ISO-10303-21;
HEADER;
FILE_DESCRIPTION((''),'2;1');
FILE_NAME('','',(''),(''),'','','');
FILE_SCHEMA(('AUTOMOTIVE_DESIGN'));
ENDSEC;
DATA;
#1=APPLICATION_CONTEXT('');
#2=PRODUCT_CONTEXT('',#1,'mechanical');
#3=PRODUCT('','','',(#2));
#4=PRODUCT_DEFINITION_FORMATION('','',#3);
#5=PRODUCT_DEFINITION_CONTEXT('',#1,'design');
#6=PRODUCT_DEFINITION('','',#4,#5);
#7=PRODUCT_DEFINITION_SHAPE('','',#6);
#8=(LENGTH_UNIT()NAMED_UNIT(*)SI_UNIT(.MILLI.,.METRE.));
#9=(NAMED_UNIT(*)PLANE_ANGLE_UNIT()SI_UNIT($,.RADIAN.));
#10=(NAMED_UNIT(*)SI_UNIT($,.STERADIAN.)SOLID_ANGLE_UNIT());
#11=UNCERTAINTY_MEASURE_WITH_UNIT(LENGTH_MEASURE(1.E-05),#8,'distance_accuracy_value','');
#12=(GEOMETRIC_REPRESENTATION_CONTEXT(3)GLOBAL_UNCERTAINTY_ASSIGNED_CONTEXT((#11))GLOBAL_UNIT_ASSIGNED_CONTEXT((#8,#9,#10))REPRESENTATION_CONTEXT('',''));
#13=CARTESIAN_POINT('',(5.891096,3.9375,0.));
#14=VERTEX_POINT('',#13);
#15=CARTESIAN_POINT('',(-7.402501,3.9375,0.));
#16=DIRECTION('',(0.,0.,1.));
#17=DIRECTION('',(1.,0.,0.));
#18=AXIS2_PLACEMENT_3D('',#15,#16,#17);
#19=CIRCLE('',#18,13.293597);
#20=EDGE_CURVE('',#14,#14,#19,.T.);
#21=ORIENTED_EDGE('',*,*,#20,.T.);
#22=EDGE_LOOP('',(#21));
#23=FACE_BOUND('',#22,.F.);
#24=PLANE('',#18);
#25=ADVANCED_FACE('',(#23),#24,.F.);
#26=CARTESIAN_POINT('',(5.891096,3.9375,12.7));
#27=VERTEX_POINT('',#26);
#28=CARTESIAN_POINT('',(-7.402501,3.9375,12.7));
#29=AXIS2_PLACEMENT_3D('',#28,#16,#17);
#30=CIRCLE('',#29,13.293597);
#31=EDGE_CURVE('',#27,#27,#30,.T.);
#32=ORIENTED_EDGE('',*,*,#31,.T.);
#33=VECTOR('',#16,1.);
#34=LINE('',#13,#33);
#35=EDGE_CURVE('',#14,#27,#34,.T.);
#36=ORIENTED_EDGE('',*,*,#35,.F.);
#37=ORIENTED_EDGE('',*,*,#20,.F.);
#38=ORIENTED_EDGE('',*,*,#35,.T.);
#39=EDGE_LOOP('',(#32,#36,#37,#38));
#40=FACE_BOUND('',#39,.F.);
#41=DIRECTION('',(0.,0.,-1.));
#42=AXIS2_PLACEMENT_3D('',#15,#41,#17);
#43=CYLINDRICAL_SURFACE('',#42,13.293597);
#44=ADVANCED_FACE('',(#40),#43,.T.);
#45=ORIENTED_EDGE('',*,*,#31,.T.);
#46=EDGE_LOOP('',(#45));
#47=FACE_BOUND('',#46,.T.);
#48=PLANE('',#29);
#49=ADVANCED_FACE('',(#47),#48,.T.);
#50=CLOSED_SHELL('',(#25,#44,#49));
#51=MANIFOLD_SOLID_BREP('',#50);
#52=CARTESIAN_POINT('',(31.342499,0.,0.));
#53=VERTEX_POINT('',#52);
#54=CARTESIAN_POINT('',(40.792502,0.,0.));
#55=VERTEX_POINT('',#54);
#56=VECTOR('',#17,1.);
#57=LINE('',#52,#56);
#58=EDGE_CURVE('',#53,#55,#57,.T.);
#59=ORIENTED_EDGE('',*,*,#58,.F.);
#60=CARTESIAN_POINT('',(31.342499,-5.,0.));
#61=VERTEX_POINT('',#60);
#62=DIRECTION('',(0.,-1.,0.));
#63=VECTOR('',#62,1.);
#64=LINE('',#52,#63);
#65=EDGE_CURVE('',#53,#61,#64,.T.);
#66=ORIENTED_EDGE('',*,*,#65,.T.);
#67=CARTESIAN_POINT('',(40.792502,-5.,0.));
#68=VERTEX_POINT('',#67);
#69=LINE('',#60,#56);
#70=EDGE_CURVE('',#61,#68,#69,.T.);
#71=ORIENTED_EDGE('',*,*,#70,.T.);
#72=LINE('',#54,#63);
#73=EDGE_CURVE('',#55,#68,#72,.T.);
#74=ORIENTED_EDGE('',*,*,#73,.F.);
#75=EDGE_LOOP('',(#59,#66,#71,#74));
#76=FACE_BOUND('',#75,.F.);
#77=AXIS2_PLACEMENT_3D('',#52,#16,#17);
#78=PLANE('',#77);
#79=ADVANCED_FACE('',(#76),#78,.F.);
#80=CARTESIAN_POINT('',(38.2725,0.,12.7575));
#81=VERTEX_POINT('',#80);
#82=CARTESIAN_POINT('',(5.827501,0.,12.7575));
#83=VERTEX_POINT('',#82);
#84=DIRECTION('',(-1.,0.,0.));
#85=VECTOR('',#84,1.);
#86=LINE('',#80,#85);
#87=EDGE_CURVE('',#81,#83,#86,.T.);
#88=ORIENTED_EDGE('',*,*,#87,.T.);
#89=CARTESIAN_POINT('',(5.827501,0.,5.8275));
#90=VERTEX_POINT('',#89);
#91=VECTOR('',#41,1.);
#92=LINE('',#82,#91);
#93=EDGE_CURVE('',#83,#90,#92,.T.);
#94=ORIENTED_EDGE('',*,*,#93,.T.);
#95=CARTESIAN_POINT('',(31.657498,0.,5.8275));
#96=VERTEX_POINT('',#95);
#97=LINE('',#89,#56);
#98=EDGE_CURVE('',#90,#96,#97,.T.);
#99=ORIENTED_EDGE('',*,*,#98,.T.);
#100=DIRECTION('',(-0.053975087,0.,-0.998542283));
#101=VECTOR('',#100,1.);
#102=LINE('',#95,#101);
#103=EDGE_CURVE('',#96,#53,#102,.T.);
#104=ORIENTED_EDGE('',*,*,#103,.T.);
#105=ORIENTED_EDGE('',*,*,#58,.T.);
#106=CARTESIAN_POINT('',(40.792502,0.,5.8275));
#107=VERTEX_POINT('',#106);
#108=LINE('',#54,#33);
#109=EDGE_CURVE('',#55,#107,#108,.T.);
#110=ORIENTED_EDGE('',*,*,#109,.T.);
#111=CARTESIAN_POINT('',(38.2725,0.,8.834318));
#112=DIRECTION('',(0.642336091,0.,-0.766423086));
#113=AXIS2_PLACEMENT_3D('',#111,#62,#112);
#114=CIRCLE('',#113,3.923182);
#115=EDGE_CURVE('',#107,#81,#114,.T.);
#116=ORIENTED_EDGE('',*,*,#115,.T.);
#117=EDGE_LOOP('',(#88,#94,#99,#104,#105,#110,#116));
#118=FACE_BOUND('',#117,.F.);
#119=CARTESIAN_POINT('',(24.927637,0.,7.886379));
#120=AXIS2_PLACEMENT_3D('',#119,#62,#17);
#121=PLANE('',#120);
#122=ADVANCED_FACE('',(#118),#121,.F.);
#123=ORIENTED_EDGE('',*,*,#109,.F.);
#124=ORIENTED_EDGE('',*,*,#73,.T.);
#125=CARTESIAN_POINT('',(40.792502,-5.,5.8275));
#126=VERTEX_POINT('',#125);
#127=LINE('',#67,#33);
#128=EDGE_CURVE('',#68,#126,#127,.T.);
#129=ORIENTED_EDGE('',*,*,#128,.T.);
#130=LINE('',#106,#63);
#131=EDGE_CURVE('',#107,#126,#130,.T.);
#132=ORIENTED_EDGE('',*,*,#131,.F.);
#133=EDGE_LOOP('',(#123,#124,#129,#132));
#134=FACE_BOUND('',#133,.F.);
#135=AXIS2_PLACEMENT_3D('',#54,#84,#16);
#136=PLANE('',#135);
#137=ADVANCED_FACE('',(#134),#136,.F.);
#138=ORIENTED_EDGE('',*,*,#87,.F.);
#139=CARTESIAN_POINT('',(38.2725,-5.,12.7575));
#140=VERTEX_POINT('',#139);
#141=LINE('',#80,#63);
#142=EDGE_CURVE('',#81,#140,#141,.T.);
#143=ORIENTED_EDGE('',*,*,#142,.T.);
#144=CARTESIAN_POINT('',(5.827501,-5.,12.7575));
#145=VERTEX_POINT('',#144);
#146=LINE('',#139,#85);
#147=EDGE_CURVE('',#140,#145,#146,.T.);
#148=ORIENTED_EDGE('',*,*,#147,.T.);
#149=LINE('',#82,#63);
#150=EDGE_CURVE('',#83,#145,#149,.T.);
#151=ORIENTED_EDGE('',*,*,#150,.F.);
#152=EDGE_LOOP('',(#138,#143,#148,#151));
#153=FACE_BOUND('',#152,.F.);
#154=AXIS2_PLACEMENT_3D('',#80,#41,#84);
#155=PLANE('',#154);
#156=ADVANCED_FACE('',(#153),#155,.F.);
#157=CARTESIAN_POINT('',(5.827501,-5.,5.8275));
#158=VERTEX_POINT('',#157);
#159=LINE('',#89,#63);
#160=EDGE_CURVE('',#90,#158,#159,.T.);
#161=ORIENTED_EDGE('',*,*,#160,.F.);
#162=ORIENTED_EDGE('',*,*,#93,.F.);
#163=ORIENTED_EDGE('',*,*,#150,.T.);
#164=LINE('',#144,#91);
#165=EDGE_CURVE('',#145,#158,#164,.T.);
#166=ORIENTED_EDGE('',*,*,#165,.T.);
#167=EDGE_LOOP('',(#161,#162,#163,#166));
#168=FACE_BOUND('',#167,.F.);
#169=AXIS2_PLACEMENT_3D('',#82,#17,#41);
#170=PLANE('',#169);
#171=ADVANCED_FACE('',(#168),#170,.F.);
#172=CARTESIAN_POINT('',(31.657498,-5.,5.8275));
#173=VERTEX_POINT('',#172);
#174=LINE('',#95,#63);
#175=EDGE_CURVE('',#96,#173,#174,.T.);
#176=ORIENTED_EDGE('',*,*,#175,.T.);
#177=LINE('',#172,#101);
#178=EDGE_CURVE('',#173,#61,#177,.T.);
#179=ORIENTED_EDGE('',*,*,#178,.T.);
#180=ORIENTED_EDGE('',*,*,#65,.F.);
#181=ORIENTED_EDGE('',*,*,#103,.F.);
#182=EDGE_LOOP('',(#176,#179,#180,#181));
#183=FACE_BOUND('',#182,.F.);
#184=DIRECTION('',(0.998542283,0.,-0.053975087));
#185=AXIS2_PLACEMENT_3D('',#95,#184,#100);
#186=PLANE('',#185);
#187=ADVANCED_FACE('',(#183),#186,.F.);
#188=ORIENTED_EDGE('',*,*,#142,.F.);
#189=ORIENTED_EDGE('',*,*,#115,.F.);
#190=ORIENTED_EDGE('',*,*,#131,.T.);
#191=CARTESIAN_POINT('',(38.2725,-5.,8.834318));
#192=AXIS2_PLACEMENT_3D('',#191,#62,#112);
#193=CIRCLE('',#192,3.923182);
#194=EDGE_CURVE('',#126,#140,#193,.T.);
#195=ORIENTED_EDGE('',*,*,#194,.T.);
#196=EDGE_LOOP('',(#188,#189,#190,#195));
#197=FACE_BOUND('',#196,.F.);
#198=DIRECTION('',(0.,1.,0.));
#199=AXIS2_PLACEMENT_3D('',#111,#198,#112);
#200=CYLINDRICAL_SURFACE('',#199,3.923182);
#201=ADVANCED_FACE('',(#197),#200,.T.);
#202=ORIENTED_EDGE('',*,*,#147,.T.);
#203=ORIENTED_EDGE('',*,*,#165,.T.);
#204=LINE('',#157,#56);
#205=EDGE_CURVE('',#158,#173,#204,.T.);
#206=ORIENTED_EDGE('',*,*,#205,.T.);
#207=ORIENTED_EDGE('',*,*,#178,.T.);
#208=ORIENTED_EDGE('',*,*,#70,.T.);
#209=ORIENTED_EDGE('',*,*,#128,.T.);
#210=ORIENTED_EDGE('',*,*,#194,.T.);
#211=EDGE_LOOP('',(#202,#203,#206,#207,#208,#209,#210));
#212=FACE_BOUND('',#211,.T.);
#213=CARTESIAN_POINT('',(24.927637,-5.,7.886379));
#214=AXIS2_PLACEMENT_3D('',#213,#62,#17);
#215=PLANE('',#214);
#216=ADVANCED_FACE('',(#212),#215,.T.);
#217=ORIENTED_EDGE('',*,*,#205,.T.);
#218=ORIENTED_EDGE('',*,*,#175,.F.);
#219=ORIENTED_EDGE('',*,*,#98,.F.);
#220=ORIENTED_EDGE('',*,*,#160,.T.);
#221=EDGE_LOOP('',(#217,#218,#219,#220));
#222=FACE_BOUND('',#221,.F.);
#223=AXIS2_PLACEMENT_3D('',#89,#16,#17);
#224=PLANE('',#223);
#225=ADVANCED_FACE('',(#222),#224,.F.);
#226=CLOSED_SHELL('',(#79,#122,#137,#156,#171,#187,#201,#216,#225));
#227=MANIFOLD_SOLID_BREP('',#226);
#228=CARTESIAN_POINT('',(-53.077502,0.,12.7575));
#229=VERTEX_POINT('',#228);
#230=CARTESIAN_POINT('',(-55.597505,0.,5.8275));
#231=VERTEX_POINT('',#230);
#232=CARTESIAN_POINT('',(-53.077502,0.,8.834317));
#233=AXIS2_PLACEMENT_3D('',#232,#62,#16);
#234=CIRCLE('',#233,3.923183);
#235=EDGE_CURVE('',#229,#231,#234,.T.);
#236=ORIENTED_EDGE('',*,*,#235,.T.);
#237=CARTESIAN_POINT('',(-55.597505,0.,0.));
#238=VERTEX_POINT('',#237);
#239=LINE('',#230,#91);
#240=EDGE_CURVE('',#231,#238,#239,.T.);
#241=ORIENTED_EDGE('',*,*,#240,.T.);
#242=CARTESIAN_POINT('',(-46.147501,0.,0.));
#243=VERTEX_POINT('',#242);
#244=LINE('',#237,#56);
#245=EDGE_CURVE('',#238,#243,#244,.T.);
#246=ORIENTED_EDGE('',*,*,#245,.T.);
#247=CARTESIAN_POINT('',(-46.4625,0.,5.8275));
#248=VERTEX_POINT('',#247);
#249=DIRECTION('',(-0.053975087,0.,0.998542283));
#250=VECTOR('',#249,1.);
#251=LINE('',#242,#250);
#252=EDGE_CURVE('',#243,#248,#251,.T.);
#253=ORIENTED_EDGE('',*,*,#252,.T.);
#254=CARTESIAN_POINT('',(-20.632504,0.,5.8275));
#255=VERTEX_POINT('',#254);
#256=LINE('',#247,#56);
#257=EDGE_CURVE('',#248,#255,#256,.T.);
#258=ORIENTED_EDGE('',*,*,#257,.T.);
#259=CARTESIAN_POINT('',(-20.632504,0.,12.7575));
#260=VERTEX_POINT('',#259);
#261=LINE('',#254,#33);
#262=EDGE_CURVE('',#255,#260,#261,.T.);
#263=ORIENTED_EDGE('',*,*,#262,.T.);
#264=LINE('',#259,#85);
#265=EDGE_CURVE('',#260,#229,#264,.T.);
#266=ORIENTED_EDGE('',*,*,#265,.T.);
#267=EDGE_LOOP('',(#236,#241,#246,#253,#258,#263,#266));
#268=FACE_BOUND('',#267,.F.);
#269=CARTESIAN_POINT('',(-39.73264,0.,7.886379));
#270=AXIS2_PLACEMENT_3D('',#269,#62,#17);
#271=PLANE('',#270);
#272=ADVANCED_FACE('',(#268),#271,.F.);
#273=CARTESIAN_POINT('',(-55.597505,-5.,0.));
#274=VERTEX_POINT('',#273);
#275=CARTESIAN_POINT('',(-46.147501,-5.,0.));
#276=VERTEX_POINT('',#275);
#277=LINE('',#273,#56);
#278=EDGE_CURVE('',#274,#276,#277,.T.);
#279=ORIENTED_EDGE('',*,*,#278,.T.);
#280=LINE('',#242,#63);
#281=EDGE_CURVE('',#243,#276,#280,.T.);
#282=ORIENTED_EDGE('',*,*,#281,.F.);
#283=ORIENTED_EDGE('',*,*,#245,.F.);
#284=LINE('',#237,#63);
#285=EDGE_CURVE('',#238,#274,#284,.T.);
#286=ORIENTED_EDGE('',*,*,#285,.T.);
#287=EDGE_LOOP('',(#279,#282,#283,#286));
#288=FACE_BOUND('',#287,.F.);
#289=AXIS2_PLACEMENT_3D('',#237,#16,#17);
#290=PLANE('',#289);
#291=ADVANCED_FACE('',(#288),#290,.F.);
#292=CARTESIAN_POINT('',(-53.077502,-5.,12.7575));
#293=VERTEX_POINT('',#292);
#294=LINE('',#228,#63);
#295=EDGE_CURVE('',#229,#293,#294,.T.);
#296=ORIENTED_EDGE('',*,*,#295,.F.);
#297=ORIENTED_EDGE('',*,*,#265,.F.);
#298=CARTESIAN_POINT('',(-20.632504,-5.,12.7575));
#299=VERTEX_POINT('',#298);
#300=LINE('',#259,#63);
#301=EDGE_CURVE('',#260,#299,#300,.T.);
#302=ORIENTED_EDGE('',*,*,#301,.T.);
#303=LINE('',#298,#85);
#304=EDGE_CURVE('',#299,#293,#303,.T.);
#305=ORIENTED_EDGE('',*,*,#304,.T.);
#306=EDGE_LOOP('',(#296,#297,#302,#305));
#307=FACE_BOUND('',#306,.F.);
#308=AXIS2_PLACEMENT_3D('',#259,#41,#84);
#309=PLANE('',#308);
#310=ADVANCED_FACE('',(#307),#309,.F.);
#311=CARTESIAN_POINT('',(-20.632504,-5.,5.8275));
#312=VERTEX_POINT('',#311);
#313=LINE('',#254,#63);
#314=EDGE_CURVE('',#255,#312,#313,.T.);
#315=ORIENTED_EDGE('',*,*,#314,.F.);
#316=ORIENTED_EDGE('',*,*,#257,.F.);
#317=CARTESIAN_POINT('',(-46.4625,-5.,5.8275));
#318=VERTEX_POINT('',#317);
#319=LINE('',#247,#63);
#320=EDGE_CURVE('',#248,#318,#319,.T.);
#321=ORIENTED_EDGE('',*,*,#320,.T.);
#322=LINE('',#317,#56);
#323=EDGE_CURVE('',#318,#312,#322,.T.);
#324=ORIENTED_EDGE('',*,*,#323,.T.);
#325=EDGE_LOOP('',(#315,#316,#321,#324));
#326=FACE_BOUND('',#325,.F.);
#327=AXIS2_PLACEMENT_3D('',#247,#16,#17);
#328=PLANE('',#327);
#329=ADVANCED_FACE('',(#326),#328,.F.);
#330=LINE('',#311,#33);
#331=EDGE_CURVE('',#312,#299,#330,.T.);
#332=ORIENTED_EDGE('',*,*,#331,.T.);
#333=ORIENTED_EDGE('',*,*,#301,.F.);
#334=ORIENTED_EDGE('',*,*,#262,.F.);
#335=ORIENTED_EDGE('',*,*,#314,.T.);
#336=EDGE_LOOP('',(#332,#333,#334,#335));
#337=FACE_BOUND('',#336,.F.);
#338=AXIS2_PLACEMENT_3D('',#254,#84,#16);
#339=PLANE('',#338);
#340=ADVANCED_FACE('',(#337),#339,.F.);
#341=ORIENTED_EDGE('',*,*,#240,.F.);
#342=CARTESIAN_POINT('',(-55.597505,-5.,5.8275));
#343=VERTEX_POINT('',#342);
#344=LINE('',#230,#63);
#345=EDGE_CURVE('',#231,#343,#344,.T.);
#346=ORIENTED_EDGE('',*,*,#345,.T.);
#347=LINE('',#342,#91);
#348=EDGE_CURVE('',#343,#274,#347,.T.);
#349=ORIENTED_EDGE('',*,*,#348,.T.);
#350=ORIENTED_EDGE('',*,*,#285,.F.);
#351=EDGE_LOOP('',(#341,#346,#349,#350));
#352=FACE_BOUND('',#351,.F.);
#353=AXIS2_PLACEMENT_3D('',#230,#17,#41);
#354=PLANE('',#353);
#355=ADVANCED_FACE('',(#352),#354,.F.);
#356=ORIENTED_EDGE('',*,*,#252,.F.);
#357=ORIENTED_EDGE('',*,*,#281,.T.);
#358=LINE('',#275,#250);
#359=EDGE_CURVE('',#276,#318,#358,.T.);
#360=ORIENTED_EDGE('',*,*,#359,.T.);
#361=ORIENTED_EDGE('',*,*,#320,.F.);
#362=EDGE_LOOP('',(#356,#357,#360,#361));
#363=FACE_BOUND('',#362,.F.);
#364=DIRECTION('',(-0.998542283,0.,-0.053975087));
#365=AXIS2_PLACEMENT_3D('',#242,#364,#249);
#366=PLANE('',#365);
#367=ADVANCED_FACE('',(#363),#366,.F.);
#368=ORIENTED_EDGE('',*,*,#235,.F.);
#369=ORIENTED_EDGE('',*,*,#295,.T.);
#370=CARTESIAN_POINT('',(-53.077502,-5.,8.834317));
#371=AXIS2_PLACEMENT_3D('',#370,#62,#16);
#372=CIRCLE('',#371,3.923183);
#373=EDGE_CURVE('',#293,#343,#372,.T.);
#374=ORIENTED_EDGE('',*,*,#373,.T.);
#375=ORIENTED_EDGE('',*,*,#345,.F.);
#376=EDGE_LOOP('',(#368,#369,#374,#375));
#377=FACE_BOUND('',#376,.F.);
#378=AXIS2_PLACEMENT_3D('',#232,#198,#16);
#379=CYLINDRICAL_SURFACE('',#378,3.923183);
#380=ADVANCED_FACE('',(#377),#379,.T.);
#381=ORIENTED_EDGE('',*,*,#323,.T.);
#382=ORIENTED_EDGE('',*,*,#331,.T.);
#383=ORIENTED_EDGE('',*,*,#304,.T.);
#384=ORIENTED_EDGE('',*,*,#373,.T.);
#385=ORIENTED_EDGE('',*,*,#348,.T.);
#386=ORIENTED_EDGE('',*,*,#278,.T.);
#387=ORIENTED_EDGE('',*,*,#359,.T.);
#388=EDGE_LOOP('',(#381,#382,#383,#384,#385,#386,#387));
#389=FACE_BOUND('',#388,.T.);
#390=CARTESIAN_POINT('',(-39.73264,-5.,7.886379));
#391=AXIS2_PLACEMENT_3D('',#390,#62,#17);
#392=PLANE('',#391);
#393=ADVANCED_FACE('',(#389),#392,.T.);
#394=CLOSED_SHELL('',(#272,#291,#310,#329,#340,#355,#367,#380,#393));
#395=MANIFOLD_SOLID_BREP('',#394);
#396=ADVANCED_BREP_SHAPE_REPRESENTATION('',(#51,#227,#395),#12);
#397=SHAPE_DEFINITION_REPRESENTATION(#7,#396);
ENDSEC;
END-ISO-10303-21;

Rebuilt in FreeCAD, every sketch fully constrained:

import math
import FreeCAD as App
import Part
import Sketcher

doc = App.newDocument("Part")
body = doc.addObject("PartDesign::Body", "Body")

# Sketch on XY plane
sketch1 = doc.addObject("Sketcher::SketchObject", "Sketch")
body.addObject(sketch1)
sketch1.AttachmentSupport = (doc.XY_Plane, [""])
sketch1.MapMode = "FlatFace"
sketch1.addGeometry(Part.Circle(App.Vector(-7, 4, 0), App.Vector(0, 0, 1), 13), False)
sketch1.addConstraint([
    Sketcher.Constraint("Diameter", 0, 26.587194),
    Sketcher.Constraint("DistanceX", 0, 3, -1, 1, 7.402501),
    Sketcher.Constraint("DistanceY", -1, 1, 0, 3, 3.9375),
])
pad1 = doc.addObject("PartDesign::Pad", "Pad")
body.addObject(pad1)
pad1.Profile = sketch1
pad1.Length = 12.7
body2 = doc.addObject("PartDesign::Body", "Body001")
body2.AllowCompound = True

# Sketch on XZ plane
sketch2 = doc.addObject("Sketcher::SketchObject", "Sketch001")
body2.addObject(sketch2)
sketch2.AttachmentSupport = (doc.getObject("XZ_Plane001"), [""])
sketch2.MapMode = "FlatFace"
sketch2.addGeometry([
    Part.LineSegment(App.Vector(38.3, 12.8, 0), App.Vector(5.8, 12.8, 0)),  # 0
    Part.LineSegment(App.Vector(5.8, 12.8, 0), App.Vector(5.8, 5.8, 0)),  # 1
    Part.LineSegment(App.Vector(5.8, 5.8, 0), App.Vector(31.7, 5.8, 0)),  # 2
    Part.LineSegment(App.Vector(31.7, 5.8, 0), App.Vector(31.3, 0, 0)),  # 3
    Part.LineSegment(App.Vector(31.3, 0, 0), App.Vector(40.8, 0, 0)),  # 4
    Part.LineSegment(App.Vector(40.8, 0, 0), App.Vector(40.8, 5.8, 0)),  # 5
    Part.ArcOfCircle(Part.Circle(App.Vector(38.3, 8.8, 0), App.Vector(0, 0, 1), 3.9), math.radians(-50), math.radians(90)),  # 6
    Part.LineSegment(App.Vector(-20.6, 5.8, 0), App.Vector(-20.6, 12.8, 0)),  # 7
    Part.LineSegment(App.Vector(-20.6, 12.8, 0), App.Vector(-53.1, 12.8, 0)),  # 8
    Part.ArcOfCircle(Part.Circle(App.Vector(-53.1, 8.8, 0), App.Vector(0, 0, 1), 3.9), math.radians(90), math.radians(230)),  # 9
    Part.LineSegment(App.Vector(-55.6, 5.8, 0), App.Vector(-55.6, 0, 0)),  # 10
    Part.LineSegment(App.Vector(-55.6, 0, 0), App.Vector(-46.1, 0, 0)),  # 11
    Part.LineSegment(App.Vector(-46.1, 0, 0), App.Vector(-46.5, 5.8, 0)),  # 12
    Part.LineSegment(App.Vector(-46.5, 5.8, 0), App.Vector(-20.6, 5.8, 0)),  # 13
], False)
sketch2.addConstraint([
    Sketcher.Constraint("Coincident", 0, 2, 1, 1),
    Sketcher.Constraint("Coincident", 1, 2, 2, 1),
    Sketcher.Constraint("Coincident", 2, 2, 3, 1),
    Sketcher.Constraint("Coincident", 3, 2, 4, 1),
    Sketcher.Constraint("Coincident", 4, 2, 5, 1),
    Sketcher.Constraint("Coincident", 5, 2, 6, 1),
    Sketcher.Constraint("Tangent", 6, 2, 0, 1),
    Sketcher.Constraint("Coincident", 7, 2, 8, 1),
    Sketcher.Constraint("Tangent", 8, 2, 9, 1),
    Sketcher.Constraint("Coincident", 9, 2, 10, 1),
    Sketcher.Constraint("Coincident", 10, 2, 11, 1),
    Sketcher.Constraint("Coincident", 11, 2, 12, 1),
    Sketcher.Constraint("Coincident", 12, 2, 13, 1),
    Sketcher.Constraint("Coincident", 13, 2, 7, 1),
    Sketcher.Constraint("Horizontal", 0),
    Sketcher.Constraint("Vertical", 1),
    Sketcher.Constraint("Horizontal", 2),
    Sketcher.Constraint("Horizontal", 4),
    Sketcher.Constraint("Vertical", 5),
    Sketcher.Constraint("Vertical", 7),
    Sketcher.Constraint("Horizontal", 8),
    Sketcher.Constraint("Vertical", 10),
    Sketcher.Constraint("Horizontal", 11),
    Sketcher.Constraint("Horizontal", 13),
    Sketcher.Constraint("Equal", 6, 9),
    Sketcher.Constraint("PointOnObject", 3, 2, -1),
    Sketcher.Constraint("PointOnObject", 10, 2, -1),
    Sketcher.Constraint("Horizontal", 6, 3, 9, 3),
    Sketcher.Constraint("Horizontal", 2, 2, 5, 2),
    Sketcher.Constraint("Horizontal", 5, 2, 9, 2),
    Sketcher.Constraint("Horizontal", 9, 2, 12, 2),
    Sketcher.Constraint("Equal", 0, 8),
    Sketcher.Constraint("Equal", 4, 11),
    Sketcher.Constraint("Equal", 2, 13),
    Sketcher.Constraint("DistanceY", 1, 2, 1, 1, 6.93),
    Sketcher.Constraint("DistanceX", 0, 2, 0, 1, 32.444999),
    Sketcher.Constraint("DistanceX", 3, 2, 6, 3, 6.930001),
    Sketcher.Constraint("DistanceX", 9, 3, 3, 2, 84.420001),
    Sketcher.Constraint("DistanceX", 6, 3, 4, 2, 2.520002),
    Sketcher.Constraint("DistanceY", 5, 1, 5, 2, 5.8275),
    Sketcher.Constraint("DistanceX", 9, 3, 2, 2, 84.735),
    Sketcher.Constraint("DistanceX", -1, 1, 6, 3, 38.2725),
])
pad2 = doc.addObject("PartDesign::Pad", "Pad001")
body2.addObject(pad2)
pad2.Profile = sketch2
pad2.Length = 5

doc.recompute()
